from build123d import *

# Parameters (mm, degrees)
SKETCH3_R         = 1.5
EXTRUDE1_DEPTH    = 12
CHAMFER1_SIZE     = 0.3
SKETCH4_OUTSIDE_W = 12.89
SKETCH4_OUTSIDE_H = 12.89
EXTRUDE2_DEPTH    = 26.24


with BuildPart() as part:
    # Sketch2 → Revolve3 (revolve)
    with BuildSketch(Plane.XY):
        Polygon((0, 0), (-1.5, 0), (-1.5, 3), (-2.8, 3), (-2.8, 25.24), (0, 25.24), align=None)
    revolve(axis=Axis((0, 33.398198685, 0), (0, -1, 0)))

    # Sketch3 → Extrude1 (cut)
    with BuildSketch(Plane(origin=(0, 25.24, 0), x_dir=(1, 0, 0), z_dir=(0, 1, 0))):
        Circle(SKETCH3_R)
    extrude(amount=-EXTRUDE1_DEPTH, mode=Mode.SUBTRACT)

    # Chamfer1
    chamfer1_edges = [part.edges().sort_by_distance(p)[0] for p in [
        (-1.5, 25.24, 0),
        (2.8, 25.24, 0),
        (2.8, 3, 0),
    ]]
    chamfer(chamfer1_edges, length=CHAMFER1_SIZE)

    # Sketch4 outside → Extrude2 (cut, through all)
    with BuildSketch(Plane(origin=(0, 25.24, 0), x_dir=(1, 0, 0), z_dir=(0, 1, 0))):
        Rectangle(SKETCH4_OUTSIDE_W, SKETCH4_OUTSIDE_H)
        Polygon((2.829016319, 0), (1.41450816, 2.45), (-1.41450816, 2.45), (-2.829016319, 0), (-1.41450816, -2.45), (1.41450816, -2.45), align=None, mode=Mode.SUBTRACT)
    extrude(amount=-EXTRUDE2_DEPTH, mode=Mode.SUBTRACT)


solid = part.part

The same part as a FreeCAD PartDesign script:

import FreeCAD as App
import Part
import Sketcher

V = App.Vector
Q = App.Units.Quantity


def edges_at(feature, points):
    """Names of the edges that pass closest to the given points."""
    edges = feature.Shape.Edges
    near = lambda p: min(range(len(edges)), key=lambda i: edges[i].distToShape(Part.Vertex(*p))[0])
    return sorted({f"Edge{near(p) + 1}" for p in points})

doc = App.newDocument("Part")
body = doc.addObject("PartDesign::Body", "Body")

# Sketch on XY plane
sketch1 = body.newObject("Sketcher::SketchObject", "Sketch")
sketch1.AttachmentSupport = (doc.getObject("XY_Plane"), [""])
sketch1.MapMode = "FlatFace"
sketch1.addGeometry([
    Part.LineSegment(V(-1.5, 0, 0), V(0, 0, 0)),  # 0
    Part.LineSegment(V(0, 0, 0), V(0, 25.2, 0)),  # 1
    Part.LineSegment(V(0, 25.2, 0), V(-2.8, 25.2, 0)),  # 2
    Part.LineSegment(V(-2.8, 25.2, 0), V(-2.8, 3, 0)),  # 3
    Part.LineSegment(V(-2.8, 3, 0), V(-1.5, 3, 0)),  # 4
    Part.LineSegment(V(-1.5, 3, 0), V(-1.5, 0, 0)),  # 5
], False)
sketch1.addConstraint([
    Sketcher.Constraint("Coincident", 0, 2, 1, 1),
    Sketcher.Constraint("Coincident", 1, 2, 2, 1),
    Sketcher.Constraint("Coincident", 2, 2, 3, 1),
    Sketcher.Constraint("Coincident", 3, 2, 4, 1),
    Sketcher.Constraint("Coincident", 4, 2, 5, 1),
    Sketcher.Constraint("Coincident", 5, 2, 0, 1),
    Sketcher.Constraint("Horizontal", 0),
    Sketcher.Constraint("Vertical", 1),
    Sketcher.Constraint("Horizontal", 2),
    Sketcher.Constraint("Vertical", 3),
    Sketcher.Constraint("Horizontal", 4),
    Sketcher.Constraint("Vertical", 5),
    Sketcher.Constraint("Coincident", 0, 2, -1, 1),
    Sketcher.Constraint("DistanceY", 5, 2, 5, 1, Q("3 mm")),
    Sketcher.Constraint("DistanceX", 0, 1, 0, 2, Q("1.5 mm")),
    Sketcher.Constraint("DistanceX", 2, 2, 2, 1, Q("2.8 mm")),
    Sketcher.Constraint("DistanceY", 1, 1, 1, 2, Q("25.24 mm")),
])
revolution = body.newObject("PartDesign::Revolution", "Revolution")
revolution.Profile = sketch1
revolution.ReferenceAxis = (sketch1, ["V_Axis"])
revolution.Angle = 360

# Sketch on XZ plane
sketch2 = body.newObject("Sketcher::SketchObject", "Sketch001")
sketch2.AttachmentSupport = (doc.getObject("XZ_Plane"), [""])
sketch2.MapMode = "FlatFace"
sketch2.AttachmentOffset = App.Placement(V(0, 0, -25.24), App.Rotation())
sketch2.addGeometry(Part.Circle(V(0, 0, 0), V(0, 0, 1), 1.5), False)
sketch2.addConstraint([
    Sketcher.Constraint("Coincident", 0, 3, -1, 1),
    Sketcher.Constraint("Diameter", 0, Q("3 mm")),
])
pocket1 = body.newObject("PartDesign::Pocket", "Pocket")
pocket1.Profile = sketch2
pocket1.Length = 12
pocket1.Reversed = True
doc.recompute()

chamfer = body.newObject("PartDesign::Chamfer", "Chamfer")
chamfer.Base = (pocket1, edges_at(pocket1, [(-1.5, 25.24, 0), (2.8, 25.24, 0), (2.8, 3, 0)]))
chamfer.Size = 0.3

# Sketch on XZ plane
sketch3 = body.newObject("Sketcher::SketchObject", "Sketch002")
sketch3.AttachmentSupport = (doc.getObject("XZ_Plane"), [""])
sketch3.MapMode = "FlatFace"
sketch3.AttachmentOffset = App.Placement(V(0, 0, -25.24), App.Rotation())
sketch3.addGeometry([
    Part.LineSegment(V(-6.4, -6.4, 0), V(-6.4, 6.4, 0)),  # 0
    Part.LineSegment(V(-6.4, 6.4, 0), V(6.4, 6.4, 0)),  # 1
    Part.LineSegment(V(6.4, 6.4, 0), V(6.4, -6.4, 0)),  # 2
    Part.LineSegment(V(6.4, -6.4, 0), V(-6.4, -6.4, 0)),  # 3
    Part.LineSegment(V(1.4, -2.5, 0), V(2.8, 0, 0)),  # 4
    Part.LineSegment(V(2.8, 0, 0), V(1.4, 2.5, 0)),  # 5
    Part.LineSegment(V(1.4, 2.5, 0), V(-1.4, 2.5, 0)),  # 6
    Part.LineSegment(V(-1.4, 2.5, 0), V(-2.8, 0, 0)),  # 7
    Part.LineSegment(V(-2.8, 0, 0), V(-1.4, -2.5, 0)),  # 8
    Part.LineSegment(V(-1.4, -2.5, 0), V(1.4, -2.5, 0)),  # 9
], False)
sketch3.addConstraint([
    Sketcher.Constraint("Coincident", 0, 2, 1, 1),
    Sketcher.Constraint("Coincident", 1, 2, 2, 1),
    Sketcher.Constraint("Coincident", 2, 2, 3, 1),
    Sketcher.Constraint("Coincident", 3, 2, 0, 1),
    Sketcher.Constraint("Coincident", 4, 2, 5, 1),
    Sketcher.Constraint("Coincident", 5, 2, 6, 1),
    Sketcher.Constraint("Coincident", 6, 2, 7, 1),
    Sketcher.Constraint("Coincident", 7, 2, 8, 1),
    Sketcher.Constraint("Coincident", 8, 2, 9, 1),
    Sketcher.Constraint("Coincident", 9, 2, 4, 1),
    Sketcher.Constraint("Vertical", 0),
    Sketcher.Constraint("Horizontal", 1),
    Sketcher.Constraint("Vertical", 2),
    Sketcher.Constraint("Horizontal", 3),
    Sketcher.Constraint("Horizontal", 6),
    Sketcher.Constraint("Horizontal", 9),
    Sketcher.Constraint("Symmetric", 0, 2, 2, 2, -1, 1),
    Sketcher.Constraint("Symmetric", 4, 2, 7, 2, -1, 1),
    Sketcher.Constraint("Symmetric", 5, 2, 8, 2, -1, 1),
    Sketcher.Constraint("PointOnObject", 4, 2, -1),
    Sketcher.Constraint("Parallel", 4, 7),
    Sketcher.Constraint("Vertical", 6, 2, 8, 2),
    Sketcher.Constraint("Equal", 3, 0),
    Sketcher.Constraint("Angle", 4, Q("60 deg")),
    Sketcher.Constraint("DistanceX", 1, 1, 1, 2, Q("12.89 mm")),
    Sketcher.Constraint("DistanceY", 8, 2, 6, 2, Q("4.9 mm")),
    Sketcher.Constraint("DistanceX", 6, 2, 6, 1, Q("2.829016 mm")),
])
pocket2 = body.newObject("PartDesign::Pocket", "Pocket001")
pocket2.Profile = sketch3
pocket2.Type = "ThroughAll"
pocket2.Reversed = True

doc.recompute()
